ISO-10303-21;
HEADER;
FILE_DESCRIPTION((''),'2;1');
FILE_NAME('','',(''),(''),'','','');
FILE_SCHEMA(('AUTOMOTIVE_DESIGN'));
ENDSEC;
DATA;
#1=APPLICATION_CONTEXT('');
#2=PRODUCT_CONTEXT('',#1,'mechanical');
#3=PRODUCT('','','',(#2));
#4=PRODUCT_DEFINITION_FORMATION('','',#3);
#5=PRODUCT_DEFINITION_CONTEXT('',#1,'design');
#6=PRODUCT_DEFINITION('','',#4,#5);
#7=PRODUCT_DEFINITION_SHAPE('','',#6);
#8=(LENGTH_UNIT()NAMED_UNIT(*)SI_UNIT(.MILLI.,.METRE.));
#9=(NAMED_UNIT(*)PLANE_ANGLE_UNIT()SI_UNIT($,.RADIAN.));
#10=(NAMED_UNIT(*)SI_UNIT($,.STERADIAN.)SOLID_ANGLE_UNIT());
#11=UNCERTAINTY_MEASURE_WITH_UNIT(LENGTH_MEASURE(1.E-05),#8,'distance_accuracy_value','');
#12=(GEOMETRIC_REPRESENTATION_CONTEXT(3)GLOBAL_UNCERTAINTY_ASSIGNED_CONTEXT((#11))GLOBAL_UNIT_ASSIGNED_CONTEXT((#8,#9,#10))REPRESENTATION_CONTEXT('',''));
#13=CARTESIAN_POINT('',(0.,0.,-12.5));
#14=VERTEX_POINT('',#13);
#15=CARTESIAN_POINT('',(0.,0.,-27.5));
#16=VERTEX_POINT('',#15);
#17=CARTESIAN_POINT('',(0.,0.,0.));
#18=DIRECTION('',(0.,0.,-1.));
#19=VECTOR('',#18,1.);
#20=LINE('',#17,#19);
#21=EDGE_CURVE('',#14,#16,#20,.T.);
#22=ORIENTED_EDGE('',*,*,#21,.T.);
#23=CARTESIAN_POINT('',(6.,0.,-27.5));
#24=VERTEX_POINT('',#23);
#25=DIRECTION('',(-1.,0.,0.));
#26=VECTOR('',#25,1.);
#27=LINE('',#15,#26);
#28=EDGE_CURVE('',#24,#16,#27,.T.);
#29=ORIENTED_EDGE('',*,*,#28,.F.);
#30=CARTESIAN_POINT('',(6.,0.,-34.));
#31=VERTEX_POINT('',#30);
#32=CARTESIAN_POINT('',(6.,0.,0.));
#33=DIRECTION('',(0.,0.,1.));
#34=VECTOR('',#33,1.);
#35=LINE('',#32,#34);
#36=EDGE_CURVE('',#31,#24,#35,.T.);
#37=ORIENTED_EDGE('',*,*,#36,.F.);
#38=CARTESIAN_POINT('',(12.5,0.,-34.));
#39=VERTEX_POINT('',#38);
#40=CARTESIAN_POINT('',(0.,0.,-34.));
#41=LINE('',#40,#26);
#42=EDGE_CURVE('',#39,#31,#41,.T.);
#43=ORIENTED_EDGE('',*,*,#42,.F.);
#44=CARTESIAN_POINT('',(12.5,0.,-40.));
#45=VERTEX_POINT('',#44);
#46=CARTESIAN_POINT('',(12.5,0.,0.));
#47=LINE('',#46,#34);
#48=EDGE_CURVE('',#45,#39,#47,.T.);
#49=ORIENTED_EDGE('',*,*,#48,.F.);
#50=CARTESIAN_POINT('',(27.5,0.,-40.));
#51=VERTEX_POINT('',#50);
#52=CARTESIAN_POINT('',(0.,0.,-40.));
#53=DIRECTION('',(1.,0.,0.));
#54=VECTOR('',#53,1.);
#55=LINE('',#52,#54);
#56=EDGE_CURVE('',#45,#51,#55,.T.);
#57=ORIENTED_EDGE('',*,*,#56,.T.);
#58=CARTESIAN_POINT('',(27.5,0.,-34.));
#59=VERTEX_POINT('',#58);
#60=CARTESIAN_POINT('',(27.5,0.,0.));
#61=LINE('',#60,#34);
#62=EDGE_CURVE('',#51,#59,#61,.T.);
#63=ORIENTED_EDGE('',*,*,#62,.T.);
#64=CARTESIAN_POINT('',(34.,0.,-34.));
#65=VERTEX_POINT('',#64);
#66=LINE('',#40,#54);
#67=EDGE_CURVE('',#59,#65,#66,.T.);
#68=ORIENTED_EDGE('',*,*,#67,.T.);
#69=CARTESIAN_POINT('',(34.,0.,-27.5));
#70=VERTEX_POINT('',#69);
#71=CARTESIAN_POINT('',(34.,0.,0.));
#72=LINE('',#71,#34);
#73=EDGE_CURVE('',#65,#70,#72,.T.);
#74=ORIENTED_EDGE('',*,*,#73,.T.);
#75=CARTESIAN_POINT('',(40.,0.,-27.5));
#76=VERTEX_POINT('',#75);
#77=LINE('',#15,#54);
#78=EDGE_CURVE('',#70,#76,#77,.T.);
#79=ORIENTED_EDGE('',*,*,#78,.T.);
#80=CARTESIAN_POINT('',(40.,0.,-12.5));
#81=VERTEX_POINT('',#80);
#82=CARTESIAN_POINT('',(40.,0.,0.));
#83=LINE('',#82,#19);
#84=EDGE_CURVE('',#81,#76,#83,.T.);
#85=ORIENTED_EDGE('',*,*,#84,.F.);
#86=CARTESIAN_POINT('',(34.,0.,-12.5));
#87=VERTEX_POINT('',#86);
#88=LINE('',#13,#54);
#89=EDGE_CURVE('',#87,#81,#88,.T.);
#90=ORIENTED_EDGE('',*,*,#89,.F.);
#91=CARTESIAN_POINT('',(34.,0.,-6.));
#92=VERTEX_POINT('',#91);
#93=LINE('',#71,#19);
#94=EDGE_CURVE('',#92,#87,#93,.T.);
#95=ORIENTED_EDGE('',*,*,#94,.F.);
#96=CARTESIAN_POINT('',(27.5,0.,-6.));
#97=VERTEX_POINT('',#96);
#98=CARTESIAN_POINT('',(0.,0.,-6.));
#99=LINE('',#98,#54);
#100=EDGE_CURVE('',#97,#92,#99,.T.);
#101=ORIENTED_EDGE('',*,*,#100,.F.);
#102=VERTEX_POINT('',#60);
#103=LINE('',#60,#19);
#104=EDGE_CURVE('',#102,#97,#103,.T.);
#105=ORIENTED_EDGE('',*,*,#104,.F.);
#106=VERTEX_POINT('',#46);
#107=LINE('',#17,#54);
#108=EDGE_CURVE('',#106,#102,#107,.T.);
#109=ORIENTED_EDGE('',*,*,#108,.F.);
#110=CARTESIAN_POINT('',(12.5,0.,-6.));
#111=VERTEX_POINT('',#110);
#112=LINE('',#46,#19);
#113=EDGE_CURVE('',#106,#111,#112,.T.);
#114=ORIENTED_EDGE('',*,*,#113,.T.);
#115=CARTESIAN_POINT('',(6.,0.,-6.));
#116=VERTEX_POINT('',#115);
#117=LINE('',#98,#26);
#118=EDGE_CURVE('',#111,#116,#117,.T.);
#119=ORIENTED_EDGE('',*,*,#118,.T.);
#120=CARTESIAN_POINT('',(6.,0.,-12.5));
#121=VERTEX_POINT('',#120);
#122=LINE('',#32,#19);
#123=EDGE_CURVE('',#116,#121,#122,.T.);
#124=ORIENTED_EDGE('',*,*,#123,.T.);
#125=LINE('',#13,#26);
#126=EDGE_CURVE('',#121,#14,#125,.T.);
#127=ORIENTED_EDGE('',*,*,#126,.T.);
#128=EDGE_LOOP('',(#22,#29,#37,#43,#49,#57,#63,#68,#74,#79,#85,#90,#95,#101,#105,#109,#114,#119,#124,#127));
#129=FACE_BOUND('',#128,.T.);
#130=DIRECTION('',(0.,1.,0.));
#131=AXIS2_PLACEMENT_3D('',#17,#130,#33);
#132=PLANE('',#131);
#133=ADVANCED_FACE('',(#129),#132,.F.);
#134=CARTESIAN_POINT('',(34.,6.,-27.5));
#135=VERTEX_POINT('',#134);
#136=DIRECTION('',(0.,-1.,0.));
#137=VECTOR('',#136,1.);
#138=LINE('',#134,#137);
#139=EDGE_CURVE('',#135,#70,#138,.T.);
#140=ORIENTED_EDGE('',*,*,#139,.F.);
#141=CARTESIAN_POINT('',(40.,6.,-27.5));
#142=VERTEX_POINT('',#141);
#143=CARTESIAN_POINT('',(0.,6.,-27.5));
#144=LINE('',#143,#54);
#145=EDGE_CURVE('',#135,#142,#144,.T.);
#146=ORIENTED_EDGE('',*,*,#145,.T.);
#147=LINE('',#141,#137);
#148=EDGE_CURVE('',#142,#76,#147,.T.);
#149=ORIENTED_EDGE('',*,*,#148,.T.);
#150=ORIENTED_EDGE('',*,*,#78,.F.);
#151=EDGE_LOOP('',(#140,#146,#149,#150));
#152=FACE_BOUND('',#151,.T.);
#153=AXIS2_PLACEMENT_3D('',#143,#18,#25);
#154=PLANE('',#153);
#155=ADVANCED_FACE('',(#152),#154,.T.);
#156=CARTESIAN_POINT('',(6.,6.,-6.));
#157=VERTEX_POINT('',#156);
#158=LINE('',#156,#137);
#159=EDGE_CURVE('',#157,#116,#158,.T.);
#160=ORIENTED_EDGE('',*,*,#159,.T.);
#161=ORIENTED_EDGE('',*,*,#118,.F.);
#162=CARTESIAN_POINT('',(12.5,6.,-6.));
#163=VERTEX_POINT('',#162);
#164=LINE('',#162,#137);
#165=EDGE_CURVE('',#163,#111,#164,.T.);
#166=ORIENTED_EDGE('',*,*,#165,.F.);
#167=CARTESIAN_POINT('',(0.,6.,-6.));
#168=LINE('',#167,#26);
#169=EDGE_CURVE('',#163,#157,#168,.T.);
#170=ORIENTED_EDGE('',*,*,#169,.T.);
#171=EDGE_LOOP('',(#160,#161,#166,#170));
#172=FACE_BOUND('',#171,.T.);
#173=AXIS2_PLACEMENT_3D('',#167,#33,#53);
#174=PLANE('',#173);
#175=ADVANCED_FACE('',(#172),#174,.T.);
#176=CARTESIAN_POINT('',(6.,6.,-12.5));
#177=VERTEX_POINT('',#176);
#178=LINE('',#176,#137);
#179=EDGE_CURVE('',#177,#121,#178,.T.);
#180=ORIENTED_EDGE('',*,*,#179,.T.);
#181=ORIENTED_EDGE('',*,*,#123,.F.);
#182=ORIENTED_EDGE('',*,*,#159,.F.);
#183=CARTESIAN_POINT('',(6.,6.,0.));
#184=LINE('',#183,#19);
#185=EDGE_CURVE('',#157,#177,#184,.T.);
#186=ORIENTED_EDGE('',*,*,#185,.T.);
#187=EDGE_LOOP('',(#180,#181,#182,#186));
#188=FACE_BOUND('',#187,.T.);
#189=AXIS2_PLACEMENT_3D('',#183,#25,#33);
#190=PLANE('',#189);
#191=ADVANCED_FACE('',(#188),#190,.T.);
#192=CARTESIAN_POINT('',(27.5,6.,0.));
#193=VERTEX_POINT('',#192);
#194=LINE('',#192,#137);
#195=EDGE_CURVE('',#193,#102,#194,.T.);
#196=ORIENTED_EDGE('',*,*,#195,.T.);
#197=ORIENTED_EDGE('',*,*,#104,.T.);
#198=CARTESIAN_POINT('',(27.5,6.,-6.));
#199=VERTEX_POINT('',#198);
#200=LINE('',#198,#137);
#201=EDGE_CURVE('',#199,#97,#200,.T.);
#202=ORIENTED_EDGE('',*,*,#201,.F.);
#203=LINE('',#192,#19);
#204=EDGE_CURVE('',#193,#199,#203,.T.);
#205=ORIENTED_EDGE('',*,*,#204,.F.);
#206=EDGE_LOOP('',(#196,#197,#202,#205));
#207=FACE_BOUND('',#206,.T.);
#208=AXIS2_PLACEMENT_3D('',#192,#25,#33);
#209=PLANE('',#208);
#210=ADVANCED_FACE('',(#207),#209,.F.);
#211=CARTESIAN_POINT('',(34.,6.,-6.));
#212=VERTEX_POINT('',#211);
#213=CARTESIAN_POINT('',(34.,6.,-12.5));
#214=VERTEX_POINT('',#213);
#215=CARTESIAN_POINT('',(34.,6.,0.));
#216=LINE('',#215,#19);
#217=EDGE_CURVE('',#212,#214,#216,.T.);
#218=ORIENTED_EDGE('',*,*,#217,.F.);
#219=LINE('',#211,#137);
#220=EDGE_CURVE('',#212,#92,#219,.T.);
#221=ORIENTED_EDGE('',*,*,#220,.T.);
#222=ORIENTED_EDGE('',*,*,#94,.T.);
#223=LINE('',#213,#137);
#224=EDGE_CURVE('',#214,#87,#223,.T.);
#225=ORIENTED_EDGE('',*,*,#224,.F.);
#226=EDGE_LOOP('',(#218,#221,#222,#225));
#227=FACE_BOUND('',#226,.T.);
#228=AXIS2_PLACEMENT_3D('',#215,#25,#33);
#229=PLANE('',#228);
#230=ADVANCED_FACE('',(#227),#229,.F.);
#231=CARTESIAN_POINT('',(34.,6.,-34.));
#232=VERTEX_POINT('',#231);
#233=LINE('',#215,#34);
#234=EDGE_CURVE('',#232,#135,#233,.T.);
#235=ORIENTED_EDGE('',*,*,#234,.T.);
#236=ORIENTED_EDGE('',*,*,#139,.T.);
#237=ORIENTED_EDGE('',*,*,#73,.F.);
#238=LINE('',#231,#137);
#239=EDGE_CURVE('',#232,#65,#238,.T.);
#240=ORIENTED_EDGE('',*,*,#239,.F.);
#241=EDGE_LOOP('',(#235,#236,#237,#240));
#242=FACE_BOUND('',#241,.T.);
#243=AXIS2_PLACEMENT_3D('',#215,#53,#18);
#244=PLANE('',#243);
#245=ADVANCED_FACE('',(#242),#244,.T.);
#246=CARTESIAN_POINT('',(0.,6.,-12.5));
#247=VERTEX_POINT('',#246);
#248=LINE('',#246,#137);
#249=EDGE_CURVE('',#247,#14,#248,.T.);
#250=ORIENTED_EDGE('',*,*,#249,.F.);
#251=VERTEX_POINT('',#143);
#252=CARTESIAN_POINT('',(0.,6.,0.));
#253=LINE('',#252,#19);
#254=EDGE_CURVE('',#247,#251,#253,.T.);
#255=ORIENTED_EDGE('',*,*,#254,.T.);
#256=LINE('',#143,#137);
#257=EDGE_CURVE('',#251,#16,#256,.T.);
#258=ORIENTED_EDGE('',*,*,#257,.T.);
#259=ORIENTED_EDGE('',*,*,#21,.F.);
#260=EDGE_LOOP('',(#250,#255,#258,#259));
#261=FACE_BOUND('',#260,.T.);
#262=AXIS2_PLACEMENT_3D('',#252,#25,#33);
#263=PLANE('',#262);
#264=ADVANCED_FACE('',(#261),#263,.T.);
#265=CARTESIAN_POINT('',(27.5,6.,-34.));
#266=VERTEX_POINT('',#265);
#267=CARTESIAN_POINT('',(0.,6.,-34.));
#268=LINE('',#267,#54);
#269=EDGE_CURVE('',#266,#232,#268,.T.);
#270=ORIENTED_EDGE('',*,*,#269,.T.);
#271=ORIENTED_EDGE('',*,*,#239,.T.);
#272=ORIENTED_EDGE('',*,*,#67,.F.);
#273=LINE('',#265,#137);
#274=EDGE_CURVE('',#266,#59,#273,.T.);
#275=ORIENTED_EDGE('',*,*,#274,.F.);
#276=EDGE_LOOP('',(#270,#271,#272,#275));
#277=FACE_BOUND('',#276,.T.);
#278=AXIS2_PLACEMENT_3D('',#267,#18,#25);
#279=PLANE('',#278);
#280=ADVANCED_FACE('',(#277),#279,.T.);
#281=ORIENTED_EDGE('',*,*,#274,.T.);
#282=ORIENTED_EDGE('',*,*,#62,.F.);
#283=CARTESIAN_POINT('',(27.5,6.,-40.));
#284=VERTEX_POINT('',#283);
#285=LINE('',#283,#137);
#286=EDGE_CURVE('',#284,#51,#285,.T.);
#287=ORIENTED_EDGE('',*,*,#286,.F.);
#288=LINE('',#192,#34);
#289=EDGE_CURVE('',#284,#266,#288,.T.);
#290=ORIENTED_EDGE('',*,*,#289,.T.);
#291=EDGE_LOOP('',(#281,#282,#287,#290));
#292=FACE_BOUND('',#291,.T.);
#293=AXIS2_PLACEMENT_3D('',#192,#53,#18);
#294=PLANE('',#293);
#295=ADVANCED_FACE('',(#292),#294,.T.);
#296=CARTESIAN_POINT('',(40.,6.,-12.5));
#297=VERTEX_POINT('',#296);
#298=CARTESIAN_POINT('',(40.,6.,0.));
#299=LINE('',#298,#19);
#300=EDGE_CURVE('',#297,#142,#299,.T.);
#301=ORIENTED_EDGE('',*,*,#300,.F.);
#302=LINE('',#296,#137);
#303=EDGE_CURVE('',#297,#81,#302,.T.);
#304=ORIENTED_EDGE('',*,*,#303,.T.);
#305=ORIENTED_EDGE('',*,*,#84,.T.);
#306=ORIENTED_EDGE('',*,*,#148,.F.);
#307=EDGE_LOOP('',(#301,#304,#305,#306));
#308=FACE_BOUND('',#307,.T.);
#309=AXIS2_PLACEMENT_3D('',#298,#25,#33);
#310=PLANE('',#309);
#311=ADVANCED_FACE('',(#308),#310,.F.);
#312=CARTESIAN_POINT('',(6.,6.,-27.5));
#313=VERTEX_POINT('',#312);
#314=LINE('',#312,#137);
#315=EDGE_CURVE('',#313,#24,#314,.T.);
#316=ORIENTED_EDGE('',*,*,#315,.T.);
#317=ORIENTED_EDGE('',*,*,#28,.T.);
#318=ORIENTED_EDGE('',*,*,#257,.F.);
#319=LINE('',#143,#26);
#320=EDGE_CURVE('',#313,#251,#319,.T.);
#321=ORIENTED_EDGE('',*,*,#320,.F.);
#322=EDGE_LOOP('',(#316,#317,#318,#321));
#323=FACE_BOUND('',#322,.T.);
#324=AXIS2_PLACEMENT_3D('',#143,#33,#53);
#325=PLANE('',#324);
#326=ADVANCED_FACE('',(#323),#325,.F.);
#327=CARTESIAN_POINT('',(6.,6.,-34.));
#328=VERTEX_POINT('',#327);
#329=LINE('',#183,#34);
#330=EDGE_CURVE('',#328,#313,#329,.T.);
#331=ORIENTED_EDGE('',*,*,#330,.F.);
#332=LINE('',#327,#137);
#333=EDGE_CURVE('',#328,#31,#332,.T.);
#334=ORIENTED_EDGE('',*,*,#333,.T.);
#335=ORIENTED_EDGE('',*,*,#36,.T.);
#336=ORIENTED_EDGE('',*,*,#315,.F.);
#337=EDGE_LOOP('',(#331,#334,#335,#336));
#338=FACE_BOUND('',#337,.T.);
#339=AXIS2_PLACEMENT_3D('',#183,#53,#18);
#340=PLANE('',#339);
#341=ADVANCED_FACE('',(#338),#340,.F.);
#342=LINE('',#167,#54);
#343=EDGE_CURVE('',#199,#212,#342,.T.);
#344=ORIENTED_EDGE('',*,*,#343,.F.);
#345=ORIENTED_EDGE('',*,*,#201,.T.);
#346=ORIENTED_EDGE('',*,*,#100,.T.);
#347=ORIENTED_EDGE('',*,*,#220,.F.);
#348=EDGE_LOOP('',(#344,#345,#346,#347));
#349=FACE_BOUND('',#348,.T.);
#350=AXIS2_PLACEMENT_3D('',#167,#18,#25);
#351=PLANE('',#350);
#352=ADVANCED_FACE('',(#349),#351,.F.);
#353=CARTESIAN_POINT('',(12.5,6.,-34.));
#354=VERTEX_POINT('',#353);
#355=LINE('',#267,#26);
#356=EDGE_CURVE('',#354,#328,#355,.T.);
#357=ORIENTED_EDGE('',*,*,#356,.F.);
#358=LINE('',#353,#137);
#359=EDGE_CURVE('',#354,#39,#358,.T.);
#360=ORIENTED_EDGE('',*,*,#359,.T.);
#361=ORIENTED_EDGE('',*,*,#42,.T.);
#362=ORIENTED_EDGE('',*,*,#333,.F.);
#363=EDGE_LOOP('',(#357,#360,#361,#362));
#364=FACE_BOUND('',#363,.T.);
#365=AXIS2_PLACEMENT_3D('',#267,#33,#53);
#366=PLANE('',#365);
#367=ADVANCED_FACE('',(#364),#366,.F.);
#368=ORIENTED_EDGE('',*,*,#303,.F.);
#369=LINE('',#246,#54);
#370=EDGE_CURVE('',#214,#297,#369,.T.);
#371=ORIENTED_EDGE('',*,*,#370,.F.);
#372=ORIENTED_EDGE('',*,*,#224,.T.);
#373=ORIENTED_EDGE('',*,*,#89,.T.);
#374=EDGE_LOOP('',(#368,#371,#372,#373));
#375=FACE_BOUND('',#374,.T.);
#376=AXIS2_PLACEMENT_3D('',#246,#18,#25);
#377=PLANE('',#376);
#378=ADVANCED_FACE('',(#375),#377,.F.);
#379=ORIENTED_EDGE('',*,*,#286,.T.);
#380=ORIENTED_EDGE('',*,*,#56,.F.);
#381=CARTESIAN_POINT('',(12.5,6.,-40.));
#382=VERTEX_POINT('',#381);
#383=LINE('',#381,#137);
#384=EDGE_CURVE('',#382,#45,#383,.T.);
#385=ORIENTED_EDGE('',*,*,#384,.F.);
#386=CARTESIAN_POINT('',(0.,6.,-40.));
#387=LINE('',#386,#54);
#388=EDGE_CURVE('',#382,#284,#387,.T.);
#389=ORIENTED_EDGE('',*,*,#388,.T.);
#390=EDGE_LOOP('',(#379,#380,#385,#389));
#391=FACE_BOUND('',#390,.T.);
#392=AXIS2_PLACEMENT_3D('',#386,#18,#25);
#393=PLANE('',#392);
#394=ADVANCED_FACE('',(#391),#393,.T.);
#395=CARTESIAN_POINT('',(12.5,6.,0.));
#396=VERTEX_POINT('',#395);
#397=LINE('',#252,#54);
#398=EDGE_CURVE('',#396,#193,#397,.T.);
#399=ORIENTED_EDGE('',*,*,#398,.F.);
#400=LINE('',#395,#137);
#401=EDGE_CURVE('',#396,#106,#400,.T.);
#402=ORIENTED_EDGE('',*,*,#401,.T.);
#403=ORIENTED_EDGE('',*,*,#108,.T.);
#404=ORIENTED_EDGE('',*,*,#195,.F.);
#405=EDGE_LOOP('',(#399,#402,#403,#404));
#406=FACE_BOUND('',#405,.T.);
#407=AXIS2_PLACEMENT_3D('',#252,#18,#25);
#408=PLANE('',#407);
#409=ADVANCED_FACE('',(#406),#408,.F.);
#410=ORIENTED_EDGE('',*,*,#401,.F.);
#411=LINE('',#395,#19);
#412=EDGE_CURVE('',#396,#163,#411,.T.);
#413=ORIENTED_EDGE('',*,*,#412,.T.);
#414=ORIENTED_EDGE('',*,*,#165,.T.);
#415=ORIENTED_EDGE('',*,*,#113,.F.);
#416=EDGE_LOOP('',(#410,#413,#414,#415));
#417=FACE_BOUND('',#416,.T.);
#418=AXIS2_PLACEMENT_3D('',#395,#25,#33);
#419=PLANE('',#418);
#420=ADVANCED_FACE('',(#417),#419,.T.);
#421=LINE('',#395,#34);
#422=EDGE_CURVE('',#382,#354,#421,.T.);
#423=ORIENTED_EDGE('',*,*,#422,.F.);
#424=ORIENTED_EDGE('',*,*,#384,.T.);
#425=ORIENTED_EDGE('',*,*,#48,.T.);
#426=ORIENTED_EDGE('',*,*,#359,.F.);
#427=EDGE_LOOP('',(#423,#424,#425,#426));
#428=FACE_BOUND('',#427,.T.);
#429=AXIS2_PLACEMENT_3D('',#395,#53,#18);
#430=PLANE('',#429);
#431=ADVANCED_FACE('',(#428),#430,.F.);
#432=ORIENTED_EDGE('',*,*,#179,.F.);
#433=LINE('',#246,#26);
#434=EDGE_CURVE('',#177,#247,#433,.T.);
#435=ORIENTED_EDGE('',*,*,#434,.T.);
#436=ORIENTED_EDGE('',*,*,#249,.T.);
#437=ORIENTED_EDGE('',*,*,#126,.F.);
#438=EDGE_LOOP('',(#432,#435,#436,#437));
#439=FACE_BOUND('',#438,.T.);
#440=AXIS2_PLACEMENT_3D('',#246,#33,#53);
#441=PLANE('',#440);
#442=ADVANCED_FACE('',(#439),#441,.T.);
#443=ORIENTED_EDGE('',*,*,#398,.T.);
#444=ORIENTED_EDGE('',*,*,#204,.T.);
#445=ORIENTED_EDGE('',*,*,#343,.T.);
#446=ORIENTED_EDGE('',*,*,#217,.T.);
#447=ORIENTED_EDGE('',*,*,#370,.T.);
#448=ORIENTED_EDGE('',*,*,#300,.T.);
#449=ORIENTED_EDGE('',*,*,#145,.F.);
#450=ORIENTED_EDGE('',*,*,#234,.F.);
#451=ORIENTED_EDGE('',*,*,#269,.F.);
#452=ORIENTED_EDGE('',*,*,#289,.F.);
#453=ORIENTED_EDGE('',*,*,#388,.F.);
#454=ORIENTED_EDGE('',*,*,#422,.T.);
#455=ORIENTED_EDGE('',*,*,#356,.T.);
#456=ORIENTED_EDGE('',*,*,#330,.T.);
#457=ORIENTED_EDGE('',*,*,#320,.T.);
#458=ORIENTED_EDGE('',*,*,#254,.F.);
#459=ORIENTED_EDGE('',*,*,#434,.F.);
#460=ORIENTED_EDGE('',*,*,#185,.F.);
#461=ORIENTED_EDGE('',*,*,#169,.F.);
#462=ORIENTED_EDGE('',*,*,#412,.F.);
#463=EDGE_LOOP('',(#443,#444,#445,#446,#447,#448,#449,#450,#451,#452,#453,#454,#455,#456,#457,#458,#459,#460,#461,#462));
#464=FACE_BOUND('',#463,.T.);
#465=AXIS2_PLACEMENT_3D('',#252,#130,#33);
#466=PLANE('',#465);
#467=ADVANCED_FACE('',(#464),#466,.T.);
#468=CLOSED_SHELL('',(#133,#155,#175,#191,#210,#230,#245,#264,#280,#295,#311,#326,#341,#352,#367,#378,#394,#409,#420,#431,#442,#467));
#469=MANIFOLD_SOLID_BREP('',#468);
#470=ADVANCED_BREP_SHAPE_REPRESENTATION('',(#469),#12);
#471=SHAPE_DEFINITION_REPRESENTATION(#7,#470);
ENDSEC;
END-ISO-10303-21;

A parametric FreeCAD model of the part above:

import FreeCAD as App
import Part
import Sketcher

V = App.Vector
Q = App.Units.Quantity

doc = App.newDocument("Part")
body = doc.addObject("PartDesign::Body", "Body")

sketch1 = doc.addObject("Sketcher::SketchObject", "Sketch")
body.addObject(sketch1)
sketch1.AttachmentSupport = (doc.XZ_Plane, [""])
sketch1.MapMode = "FlatFace"
sketch1.addGeometry([
    Part.LineSegment(V(28, -40, 0), V(12, -40, 0)),
    Part.LineSegment(V(12, -40, 0), V(12, -34, 0)),
    Part.LineSegment(V(12, -34, 0), V(6, -34, 0)),
    Part.LineSegment(V(6, -34, 0), V(6, -28, 0)),
    Part.LineSegment(V(6, -28, 0), V(0, -28, 0)),
    Part.LineSegment(V(0, -28, 0), V(0, -12, 0)),
    Part.LineSegment(V(0, -12, 0), V(6, -12, 0)),
    Part.LineSegment(V(6, -12, 0), V(6, -6, 0)),
    Part.LineSegment(V(6, -6, 0), V(12, -6, 0)),
    Part.LineSegment(V(12, -6, 0), V(12, 0, 0)),
    Part.LineSegment(V(12, 0, 0), V(28, 0, 0)),
    Part.LineSegment(V(28, 0, 0), V(28, -6, 0)),
    Part.LineSegment(V(28, -6, 0), V(34, -6, 0)),
    Part.LineSegment(V(34, -6, 0), V(34, -12, 0)),
    Part.LineSegment(V(34, -12, 0), V(40, -12, 0)),
    Part.LineSegment(V(40, -12, 0), V(40, -28, 0)),
    Part.LineSegment(V(40, -28, 0), V(34, -28, 0)),
    Part.LineSegment(V(34, -28, 0), V(34, -34, 0)),
    Part.LineSegment(V(34, -34, 0), V(28, -34, 0)),
    Part.LineSegment(V(28, -34, 0), V(28, -40, 0)),
], False)
sketch1.addConstraint([
    Sketcher.Constraint("Coincident", 0, 2, 1, 1),
    Sketcher.Constraint("Coincident", 1, 2, 2, 1),
    Sketcher.Constraint("Coincident", 2, 2, 3, 1),
    Sketcher.Constraint("Coincident", 3, 2, 4, 1),
    Sketcher.Constraint("Coincident", 4, 2, 5, 1),
    Sketcher.Constraint("Coincident", 5, 2, 6, 1),
    Sketcher.Constraint("Coincident", 6, 2, 7, 1),
    Sketcher.Constraint("Coincident", 7, 2, 8, 1),
    Sketcher.Constraint("Coincident", 8, 2, 9, 1),
    Sketcher.Constraint("Coincident", 9, 2, 10, 1),
    Sketcher.Constraint("Coincident", 10, 2, 11, 1),
    Sketcher.Constraint("Coincident", 11, 2, 12, 1),
    Sketcher.Constraint("Coincident", 12, 2, 13, 1),
    Sketcher.Constraint("Coincident", 13, 2, 14, 1),
    Sketcher.Constraint("Coincident", 14, 2, 15, 1),
    Sketcher.Constraint("Coincident", 15, 2, 16, 1),
    Sketcher.Constraint("Coincident", 16, 2, 17, 1),
    Sketcher.Constraint("Coincident", 17, 2, 18, 1),
    Sketcher.Constraint("Coincident", 18, 2, 19, 1),
    Sketcher.Constraint("Coincident", 19, 2, 0, 1),
    Sketcher.Constraint("Horizontal", 0),
    Sketcher.Constraint("Vertical", 1),
    Sketcher.Constraint("Horizontal", 2),
    Sketcher.Constraint("Vertical", 3),
    Sketcher.Constraint("Horizontal", 4),
    Sketcher.Constraint("Vertical", 5),
    Sketcher.Constraint("Horizontal", 6),
    Sketcher.Constraint("Vertical", 7),
    Sketcher.Constraint("Horizontal", 8),
    Sketcher.Constraint("Vertical", 9),
    Sketcher.Constraint("Horizontal", 10),
    Sketcher.Constraint("Vertical", 11),
    Sketcher.Constraint("Horizontal", 12),
    Sketcher.Constraint("Vertical", 13),
    Sketcher.Constraint("Horizontal", 14),
    Sketcher.Constraint("Vertical", 15),
    Sketcher.Constraint("Horizontal", 16),
    Sketcher.Constraint("Vertical", 17),
    Sketcher.Constraint("Horizontal", 18),
    Sketcher.Constraint("Vertical", 19),
    Sketcher.Constraint("PointOnObject", 4, 2, -2),
    Sketcher.Constraint("PointOnObject", 9, 2, -1),
    Sketcher.Constraint("Horizontal", 8, 2, 11, 2),
    Sketcher.Constraint("Horizontal", 6, 2, 13, 2),
    Sketcher.Constraint("Horizontal", 4, 2, 15, 2),
    Sketcher.Constraint("Horizontal", 2, 2, 17, 2),
    Sketcher.Constraint("Vertical", 3, 2, 6, 2),
    Sketcher.Constraint("Vertical", 1, 2, 8, 2),
    Sketcher.Constraint("Vertical", 13, 2, 16, 2),
    Sketcher.Constraint("Vertical", 11, 2, 18, 2),
    Sketcher.Constraint("Equal", 8, 12),
    Sketcher.Constraint("Equal", 6, 14),
    Sketcher.Constraint("Equal", 16, 1),
    Sketcher.Constraint("Equal", 18, 3),
    Sketcher.Constraint("Equal", 10, 5),
    Sketcher.Constraint("Equal", 3, 7),
    Sketcher.Constraint("Equal", 1, 9),
    Sketcher.Constraint("DistanceX", 0, 2, 0, 1, Q("15 mm")),
    Sketcher.Constraint("DistanceX", 4, 2, 4, 1, Q("6 mm")),
    Sketcher.Constraint("DistanceX", 2, 2, 2, 1, Q("6.5 mm")),
])
pad1 = doc.addObject("PartDesign::Pad", "Pad")
body.addObject(pad1)
pad1.Profile = sketch1
pad1.Length = 6
pad1.Reversed = True

doc.recompute()
